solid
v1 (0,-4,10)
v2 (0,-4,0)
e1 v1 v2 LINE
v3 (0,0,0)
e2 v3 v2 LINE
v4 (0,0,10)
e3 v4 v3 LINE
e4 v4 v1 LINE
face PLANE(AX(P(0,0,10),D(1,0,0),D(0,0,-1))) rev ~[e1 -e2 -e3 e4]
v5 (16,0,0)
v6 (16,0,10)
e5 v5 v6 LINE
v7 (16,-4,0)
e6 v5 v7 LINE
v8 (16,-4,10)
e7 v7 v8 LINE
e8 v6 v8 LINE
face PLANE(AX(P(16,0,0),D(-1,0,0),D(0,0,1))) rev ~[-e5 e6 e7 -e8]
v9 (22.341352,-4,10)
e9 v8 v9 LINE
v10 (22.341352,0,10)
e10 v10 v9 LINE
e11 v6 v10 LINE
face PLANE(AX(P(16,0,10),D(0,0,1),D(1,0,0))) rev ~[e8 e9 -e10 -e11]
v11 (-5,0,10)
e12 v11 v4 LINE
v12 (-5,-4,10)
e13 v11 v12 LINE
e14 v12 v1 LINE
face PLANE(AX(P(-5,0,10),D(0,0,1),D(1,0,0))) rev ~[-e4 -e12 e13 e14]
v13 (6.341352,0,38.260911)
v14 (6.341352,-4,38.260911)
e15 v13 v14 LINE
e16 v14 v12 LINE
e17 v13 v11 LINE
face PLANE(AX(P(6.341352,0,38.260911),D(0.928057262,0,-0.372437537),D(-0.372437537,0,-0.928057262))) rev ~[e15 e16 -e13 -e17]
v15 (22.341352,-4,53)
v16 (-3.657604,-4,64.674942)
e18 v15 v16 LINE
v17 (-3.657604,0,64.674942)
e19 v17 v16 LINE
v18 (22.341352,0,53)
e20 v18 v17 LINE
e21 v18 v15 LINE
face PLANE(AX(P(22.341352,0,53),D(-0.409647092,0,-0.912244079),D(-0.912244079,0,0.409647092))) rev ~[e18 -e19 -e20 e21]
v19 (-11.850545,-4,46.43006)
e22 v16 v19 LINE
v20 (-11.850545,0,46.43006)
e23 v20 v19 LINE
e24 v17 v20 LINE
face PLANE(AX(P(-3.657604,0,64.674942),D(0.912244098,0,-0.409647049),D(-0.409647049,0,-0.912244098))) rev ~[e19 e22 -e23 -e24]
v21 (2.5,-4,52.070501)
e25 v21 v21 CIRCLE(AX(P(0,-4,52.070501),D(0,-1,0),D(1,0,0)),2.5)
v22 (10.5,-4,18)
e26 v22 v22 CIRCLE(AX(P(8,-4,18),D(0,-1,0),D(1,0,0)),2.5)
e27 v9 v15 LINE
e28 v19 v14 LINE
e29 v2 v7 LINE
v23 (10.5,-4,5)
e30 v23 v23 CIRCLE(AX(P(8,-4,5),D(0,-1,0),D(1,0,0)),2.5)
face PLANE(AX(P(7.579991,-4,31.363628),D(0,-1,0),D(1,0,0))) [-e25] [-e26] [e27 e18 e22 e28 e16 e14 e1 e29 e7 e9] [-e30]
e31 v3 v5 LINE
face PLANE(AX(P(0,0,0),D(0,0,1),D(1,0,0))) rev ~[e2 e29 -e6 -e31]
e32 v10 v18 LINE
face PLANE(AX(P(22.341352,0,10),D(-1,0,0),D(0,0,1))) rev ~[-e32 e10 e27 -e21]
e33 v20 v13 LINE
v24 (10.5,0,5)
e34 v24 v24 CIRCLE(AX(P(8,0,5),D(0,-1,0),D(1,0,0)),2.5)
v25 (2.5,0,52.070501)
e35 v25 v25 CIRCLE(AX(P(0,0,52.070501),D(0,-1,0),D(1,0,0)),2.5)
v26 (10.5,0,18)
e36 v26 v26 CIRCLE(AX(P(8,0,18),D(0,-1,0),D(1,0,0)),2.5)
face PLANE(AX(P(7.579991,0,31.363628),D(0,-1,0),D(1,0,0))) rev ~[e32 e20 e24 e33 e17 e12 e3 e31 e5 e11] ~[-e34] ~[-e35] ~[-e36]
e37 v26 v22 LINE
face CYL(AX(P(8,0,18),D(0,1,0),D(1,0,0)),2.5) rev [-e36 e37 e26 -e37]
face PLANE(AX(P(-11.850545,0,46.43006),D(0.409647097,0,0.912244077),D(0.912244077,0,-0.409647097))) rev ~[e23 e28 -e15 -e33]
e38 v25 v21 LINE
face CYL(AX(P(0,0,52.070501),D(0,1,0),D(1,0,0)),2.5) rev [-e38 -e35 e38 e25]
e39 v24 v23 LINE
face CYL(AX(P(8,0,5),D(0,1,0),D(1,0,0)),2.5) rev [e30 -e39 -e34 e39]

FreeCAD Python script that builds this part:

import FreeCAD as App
import Part
import Sketcher
Q = App.Units.Quantity

doc = App.newDocument("Part")
body = doc.addObject("PartDesign::Body", "Body")

# Sketch on XZ plane
sketch1 = body.newObject("Sketcher::SketchObject", "Sketch")
sketch1.AttachmentSupport = (doc.getObject("XZ_Plane"), [""])
sketch1.MapMode = "FlatFace"
sketch1.addGeometry([
    Part.LineSegment(App.Vector(0, 10, 0), App.Vector(0, 0, 0)),  # 0
    Part.LineSegment(App.Vector(0, 0, 0), App.Vector(16, 0, 0)),  # 1
    Part.LineSegment(App.Vector(16, 0, 0), App.Vector(16, 10, 0)),  # 2
    Part.LineSegment(App.Vector(16, 10, 0), App.Vector(22.3, 10, 0)),  # 3
    Part.LineSegment(App.Vector(22.3, 10, 0), App.Vector(22.3, 53, 0)),  # 4
    Part.LineSegment(App.Vector(22.3, 53, 0), App.Vector(-3.7, 64.7, 0)),  # 5
    Part.LineSegment(App.Vector(-3.7, 64.7, 0), App.Vector(-11.9, 46.4, 0)),  # 6
    Part.LineSegment(App.Vector(-11.9, 46.4, 0), App.Vector(6.3, 38.3, 0)),  # 7
    Part.LineSegment(App.Vector(6.3, 38.3, 0), App.Vector(-5, 10, 0)),  # 8
    Part.LineSegment(App.Vector(-5, 10, 0), App.Vector(0, 10, 0)),  # 9
    Part.Circle(App.Vector(8, 5, 0), App.Vector(0, 0, 1), 2.5),  # 10
    Part.Circle(App.Vector(8, 18, 0), App.Vector(0, 0, 1), 2.5),  # 11
    Part.Circle(App.Vector(0, 52.1, 0), App.Vector(0, 0, 1), 2.5),  # 12
], False)
sketch1.addConstraint([
    Sketcher.Constraint("Coincident", 0, 2, 1, 1),
    Sketcher.Constraint("Coincident", 1, 2, 2, 1),
    Sketcher.Constraint("Coincident", 2, 2, 3, 1),
    Sketcher.Constraint("Coincident", 3, 2, 4, 1),
    Sketcher.Constraint("Coincident", 4, 2, 5, 1),
    Sketcher.Constraint("Coincident", 5, 2, 6, 1),
    Sketcher.Constraint("Coincident", 6, 2, 7, 1),
    Sketcher.Constraint("Coincident", 7, 2, 8, 1),
    Sketcher.Constraint("Coincident", 8, 2, 9, 1),
    Sketcher.Constraint("Coincident", 9, 2, 0, 1),
    Sketcher.Constraint("Vertical", 0),
    Sketcher.Constraint("Horizontal", 1),
    Sketcher.Constraint("Vertical", 2),
    Sketcher.Constraint("Horizontal", 3),
    Sketcher.Constraint("Vertical", 4),
    Sketcher.Constraint("Horizontal", 9),
    Sketcher.Constraint("Coincident", 0, 2, -1, 1),
    Sketcher.Constraint("Equal", 10, 11),
    Sketcher.Constraint("Equal", 11, 12),
    Sketcher.Constraint("PointOnObject", 12, 3, -2),
    Sketcher.Constraint("Perpendicular", 5, 6),
    Sketcher.Constraint("Perpendicular", 6, 7),
    Sketcher.Constraint("Horizontal", 3, 2, 8, 2),
    Sketcher.Constraint("Vertical", 10, 3, 11, 3),
    Sketcher.Constraint("Diameter", 10, Q("5 mm")),
    Sketcher.Constraint("DistanceX", 1, 1, 1, 2, Q("16 mm")),
    Sketcher.Constraint("DistanceX", 9, 1, 9, 2, Q("5 mm")),
    Sketcher.Constraint("DistanceY", 0, 2, 0, 1, Q("10 mm")),
    Sketcher.Constraint("DistanceY", 4, 1, 4, 2, Q("43 mm")),
    Sketcher.Constraint("Distance", 6, Q("20 mm")),
    Sketcher.Constraint("DistanceX", -1, 1, 10, 3, Q("8 mm")),
    Sketcher.Constraint("DistanceY", -1, 1, 10, 3, Q("5 mm")),
    Sketcher.Constraint("DistanceY", -1, 1, 11, 3, Q("18 mm")),
    Sketcher.Constraint("DistanceX", 7, 2, 4, 2, Q("16 mm")),
    Sketcher.Constraint("Distance", 5, Q("28.5 mm")),
    Sketcher.Constraint("DistanceY", -1, 1, 12, 3, Q("52.070501 mm")),
    Sketcher.Constraint("Distance", 7, Q("19.941918 mm")),
    Sketcher.Constraint("Distance", 8, Q("30.451689 mm")),
])
pad1 = body.newObject("PartDesign::Pad", "Pad")
pad1.Profile = sketch1
pad1.Length = 4

doc.recompute()
